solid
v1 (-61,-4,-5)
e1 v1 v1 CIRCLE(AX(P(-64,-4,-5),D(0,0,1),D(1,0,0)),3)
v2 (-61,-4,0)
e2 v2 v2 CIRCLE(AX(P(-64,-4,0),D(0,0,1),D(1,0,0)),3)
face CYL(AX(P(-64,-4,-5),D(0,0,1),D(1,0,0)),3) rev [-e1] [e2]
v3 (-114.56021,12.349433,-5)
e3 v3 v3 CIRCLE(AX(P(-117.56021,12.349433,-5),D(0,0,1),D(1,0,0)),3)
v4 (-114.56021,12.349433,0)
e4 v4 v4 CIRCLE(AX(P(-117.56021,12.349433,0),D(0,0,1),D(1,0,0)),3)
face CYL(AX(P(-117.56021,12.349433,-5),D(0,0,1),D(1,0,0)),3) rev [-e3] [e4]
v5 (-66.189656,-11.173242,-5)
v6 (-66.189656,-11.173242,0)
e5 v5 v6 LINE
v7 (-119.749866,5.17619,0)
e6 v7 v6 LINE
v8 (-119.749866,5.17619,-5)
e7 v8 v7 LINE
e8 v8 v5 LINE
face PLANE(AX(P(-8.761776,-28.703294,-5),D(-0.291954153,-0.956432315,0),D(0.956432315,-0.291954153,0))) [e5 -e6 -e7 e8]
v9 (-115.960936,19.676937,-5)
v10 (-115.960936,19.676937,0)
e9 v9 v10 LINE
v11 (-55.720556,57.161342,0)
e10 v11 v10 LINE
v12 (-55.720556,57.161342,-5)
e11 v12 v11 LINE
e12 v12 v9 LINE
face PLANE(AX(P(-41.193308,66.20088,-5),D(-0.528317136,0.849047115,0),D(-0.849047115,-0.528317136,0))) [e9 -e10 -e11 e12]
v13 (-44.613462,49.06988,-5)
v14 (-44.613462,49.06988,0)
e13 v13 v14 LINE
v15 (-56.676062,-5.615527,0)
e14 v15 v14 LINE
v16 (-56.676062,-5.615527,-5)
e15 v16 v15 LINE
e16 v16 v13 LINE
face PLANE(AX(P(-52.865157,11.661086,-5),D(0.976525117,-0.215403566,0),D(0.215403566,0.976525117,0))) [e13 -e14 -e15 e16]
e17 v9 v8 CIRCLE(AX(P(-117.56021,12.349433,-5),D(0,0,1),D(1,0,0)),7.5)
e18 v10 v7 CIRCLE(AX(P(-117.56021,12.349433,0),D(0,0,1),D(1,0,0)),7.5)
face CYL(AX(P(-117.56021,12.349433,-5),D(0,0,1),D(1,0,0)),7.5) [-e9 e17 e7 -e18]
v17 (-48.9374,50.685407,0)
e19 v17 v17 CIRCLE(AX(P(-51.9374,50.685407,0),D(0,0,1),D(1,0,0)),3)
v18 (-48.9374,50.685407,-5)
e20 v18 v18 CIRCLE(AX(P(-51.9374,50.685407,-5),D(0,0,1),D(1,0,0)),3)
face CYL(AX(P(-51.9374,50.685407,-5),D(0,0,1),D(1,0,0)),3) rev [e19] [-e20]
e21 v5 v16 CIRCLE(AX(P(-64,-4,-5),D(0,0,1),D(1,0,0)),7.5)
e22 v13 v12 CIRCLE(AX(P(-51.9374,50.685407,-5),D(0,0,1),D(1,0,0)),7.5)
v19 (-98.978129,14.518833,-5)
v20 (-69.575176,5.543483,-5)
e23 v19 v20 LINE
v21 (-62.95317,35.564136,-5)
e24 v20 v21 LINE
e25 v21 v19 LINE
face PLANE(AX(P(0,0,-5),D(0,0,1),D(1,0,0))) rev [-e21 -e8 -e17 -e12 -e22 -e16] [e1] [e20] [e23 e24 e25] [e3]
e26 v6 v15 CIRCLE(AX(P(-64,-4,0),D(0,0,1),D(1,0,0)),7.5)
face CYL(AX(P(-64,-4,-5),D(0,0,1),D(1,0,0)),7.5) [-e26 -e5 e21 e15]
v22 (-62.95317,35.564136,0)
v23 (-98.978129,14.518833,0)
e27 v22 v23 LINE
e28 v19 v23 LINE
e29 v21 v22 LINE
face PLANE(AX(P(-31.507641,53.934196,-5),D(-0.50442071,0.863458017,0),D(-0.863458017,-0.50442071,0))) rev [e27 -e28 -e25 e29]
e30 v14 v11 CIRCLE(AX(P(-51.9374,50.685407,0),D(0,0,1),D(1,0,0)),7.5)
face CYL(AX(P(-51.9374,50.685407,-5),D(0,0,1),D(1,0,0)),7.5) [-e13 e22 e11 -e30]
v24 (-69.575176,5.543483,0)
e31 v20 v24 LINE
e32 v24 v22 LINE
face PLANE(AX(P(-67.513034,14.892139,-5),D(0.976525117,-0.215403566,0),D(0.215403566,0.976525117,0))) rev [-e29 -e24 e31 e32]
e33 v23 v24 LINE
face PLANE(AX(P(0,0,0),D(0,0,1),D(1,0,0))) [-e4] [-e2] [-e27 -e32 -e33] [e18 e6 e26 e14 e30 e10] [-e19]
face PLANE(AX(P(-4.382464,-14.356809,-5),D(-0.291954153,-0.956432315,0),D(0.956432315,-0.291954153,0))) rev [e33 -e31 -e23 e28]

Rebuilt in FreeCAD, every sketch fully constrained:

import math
import FreeCAD as App
import Part
import Sketcher
from FreeCAD import Vector
Q = App.Units.Quantity


def add_polygon(sketch, points):
    """Adds a closed chain of lines whose ends are joined by coincident constraints."""
    first, n = sketch.GeometryCount, len(points)
    for a, b in zip(points, points[1:] + points[:1]):
        sketch.addGeometry(Part.LineSegment(App.Vector(*a, 0), App.Vector(*b, 0)), False)
    for i in range(n):
        sketch.addConstraint(Sketcher.Constraint("Coincident", first + i, 2, first + (i + 1) % n, 1))

doc = App.newDocument("Part")
body = doc.addObject("PartDesign::Body", "Body")

# Sketch on XY plane
sketch1 = doc.addObject("Sketcher::SketchObject", "Sketch")
body.addObject(sketch1)
sketch1.AttachmentSupport = (doc.XY_Plane, [""])
sketch1.MapMode = "FlatFace"
sketch1.addGeometry(Part.LineSegment(Vector(-57, -6, 0), Vector(-45, 49, 0)), False)  # 0
sketch1.addGeometry(Part.ArcOfCircle(Part.Circle(Vector(-52, 51, 0), Vector(0, 0, 1), 8), math.radians(-12), math.radians(120)), False)  # 1
sketch1.addGeometry(Part.LineSegment(Vector(-56, 57, 0), Vector(-116, 20, 0)), False)  # 2
sketch1.addGeometry(Part.ArcOfCircle(Part.Circle(Vector(-118, 12, 0), Vector(0, 0, 1), 8), math.radians(78), math.radians(253)), False)  # 3
sketch1.addGeometry(Part.LineSegment(Vector(-120, 5, 0), Vector(-66, -11, 0)), False)  # 4
sketch1.addGeometry(Part.ArcOfCircle(Part.Circle(Vector(-64, -4, 0), Vector(0, 0, 1), 7), math.radians(-107), math.radians(-12)), False)  # 5
add_polygon(sketch1, [(-99, 15), (-63, 36), (-70, 6)])  # lines 6-8
sketch1.addConstraint([
    Sketcher.Constraint("Tangent", 0, 2, 1, 1),
    Sketcher.Constraint("Coincident", 1, 2, 2, 1),
    Sketcher.Constraint("Coincident", 2, 2, 3, 1),
    Sketcher.Constraint("Tangent", 3, 2, 4, 1),
    Sketcher.Constraint("Tangent", 4, 2, 5, 1),
    Sketcher.Constraint("Tangent", 5, 2, 0, 1),
    Sketcher.Constraint("Equal", 1, 3),
    Sketcher.Constraint("Equal", 3, 5),
    Sketcher.Constraint("Parallel", 0, 7),
    Sketcher.Constraint("Parallel", 4, 8),
    Sketcher.Constraint("Equal", 0, 4),
    Sketcher.Constraint("Equal", 7, 8),
    Sketcher.Constraint("Radius", 1, Q("7.5 mm")),
    Sketcher.Constraint("Distance", 0, Q("56 mm")),
    Sketcher.Constraint("DistanceX", 5, 3, -1, 1, Q("64 mm")),
    Sketcher.Constraint("DistanceY", 5, 3, -1, 1, Q("4 mm")),
    Sketcher.Constraint("DistanceX", 1, 3, -1, 1, Q("51.9374 mm")),
    Sketcher.Constraint("DistanceY", 3, 3, 8, 2, Q("2.1694 mm")),
    Sketcher.Constraint("DistanceX", 3, 3, -1, 1, Q("117.56021 mm")),
    Sketcher.Constraint("DistanceY", -1, 1, 1, 2, Q("57.161342 mm")),
    Sketcher.Constraint("DistanceX", 6, 2, -1, 1, Q("62.95317 mm")),
    Sketcher.Constraint("DistanceX", 8, 2, -1, 1, Q("98.978129 mm")),
    Sketcher.Constraint("DistanceX", 2, 2, 1, 2, Q("60.240381 mm")),
])
pad1 = doc.addObject("PartDesign::Pad", "Pad")
body.addObject(pad1)
pad1.Profile = sketch1
pad1.Length = 5
pad1.Reversed = True

# Sketch on XY plane
sketch2 = doc.addObject("Sketcher::SketchObject", "Sketch001")
body.addObject(sketch2)
sketch2.AttachmentSupport = (doc.XY_Plane, [""])
sketch2.MapMode = "FlatFace"
sketch2.addGeometry([
    Part.Circle(Vector(-117.6, 12.3, 0), Vector(0, 0, 1), 3),
    Part.Circle(Vector(-64, -4, 0), Vector(0, 0, 1), 3),
    Part.Circle(Vector(-51.9, 50.7, 0), Vector(0, 0, 1), 3),
], False)
sketch2.addConstraint([
    Sketcher.Constraint("Equal", 0, 1),
    Sketcher.Constraint("Equal", 1, 2),
    Sketcher.Constraint("Diameter", 0, Q("6 mm")),
    Sketcher.Constraint("DistanceX", 1, 3, -1, 1, Q("64 mm")),
    Sketcher.Constraint("DistanceY", 1, 3, -1, 1, Q("4 mm")),
    Sketcher.Constraint("DistanceX", 2, 3, -1, 1, Q("51.9374 mm")),
    Sketcher.Constraint("DistanceX", 0, 3, -1, 1, Q("117.56021 mm")),
    Sketcher.Constraint("DistanceY", -1, 1, 0, 3, Q("12.349433 mm")),
    Sketcher.Constraint("DistanceY", -1, 1, 2, 3, Q("50.685407 mm")),
])
pocket1 = doc.addObject("PartDesign::Pocket", "Pocket")
body.addObject(pocket1)
pocket1.Profile = sketch2
pocket1.Type = "ThroughAll"
pocket1.Midplane = True

doc.recompute()
